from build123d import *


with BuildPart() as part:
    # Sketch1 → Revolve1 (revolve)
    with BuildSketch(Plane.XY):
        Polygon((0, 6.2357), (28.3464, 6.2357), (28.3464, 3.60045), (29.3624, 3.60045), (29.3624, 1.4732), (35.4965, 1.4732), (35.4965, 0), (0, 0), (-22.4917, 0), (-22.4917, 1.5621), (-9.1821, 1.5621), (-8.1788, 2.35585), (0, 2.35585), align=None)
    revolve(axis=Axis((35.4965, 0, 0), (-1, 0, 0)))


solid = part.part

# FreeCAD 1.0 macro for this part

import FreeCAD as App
import Part
import Sketcher
Q = App.Units.Quantity


def add_polygon(sketch, points):
    """Adds a closed chain of lines whose ends are joined by coincident constraints."""
    first, n = sketch.GeometryCount, len(points)
    for a, b in zip(points, points[1:] + points[:1]):
        sketch.addGeometry(Part.LineSegment(App.Vector(*a, 0), App.Vector(*b, 0)), False)
    for i in range(n):
        sketch.addConstraint(Sketcher.Constraint("Coincident", first + i, 2, first + (i + 1) % n, 1))

doc = App.newDocument("Part")
body = doc.addObject("PartDesign::Body", "Body")

# Sketch on XY plane
sketch1 = body.newObject("Sketcher::SketchObject", "Sketch")
sketch1.AttachmentSupport = (doc.getObject("XY_Plane"), [""])
sketch1.MapMode = "FlatFace"
add_polygon(sketch1, [(28.3464, 6.2357), (0, 6.2357), (0, 2.35585), (-8.1788, 2.35585), (-9.1821, 1.5621), (-22.4917, 1.5621), (-22.4917, 0), (35.4965, 0), (35.4965, 1.4732), (29.3624, 1.4732), (29.3624, 3.60045), (28.3464, 3.60045)])  # lines 0-11
sketch1.addConstraint(Sketcher.Constraint("Horizontal", 0))
sketch1.addConstraint(Sketcher.Constraint("Vertical", 1))
sketch1.addConstraint(Sketcher.Constraint("Horizontal", 2))
sketch1.addConstraint(Sketcher.Constraint("Horizontal", 4))
sketch1.addConstraint(Sketcher.Constraint("Vertical", 5))
sketch1.addConstraint(Sketcher.Constraint("Horizontal", 6))
sketch1.addConstraint(Sketcher.Constraint("Vertical", 7))
sketch1.addConstraint(Sketcher.Constraint("Horizontal", 8))
sketch1.addConstraint(Sketcher.Constraint("Vertical", 9))
sketch1.addConstraint(Sketcher.Constraint("Horizontal", 10))
sketch1.addConstraint(Sketcher.Constraint("Vertical", 11))
sketch1.addConstraint(Sketcher.Constraint("PointOnObject", 0, 2, -2))
sketch1.addConstraint(Sketcher.Constraint("PointOnObject", 5, 2, -1))
sketch1.addConstraint(Sketcher.Constraint("DistanceX", 10, 2, 10, 1, Q("0.04 in")))
sketch1.addConstraint(Sketcher.Constraint("DistanceX", 0, 2, 0, 1, Q("1.116 in")))
sketch1.addConstraint(Sketcher.Constraint("DistanceX", 2, 2, 2, 1, Q("0.322 in")))
sketch1.addConstraint(Sketcher.Constraint("DistanceX", 4, 2, 4, 1, Q("0.524 in")))
sketch1.addConstraint(Sketcher.Constraint("DistanceX", 6, 1, 6, 2, Q("2.283 in")))
sketch1.addConstraint(Sketcher.Constraint("DistanceY", 7, 1, 7, 2, Q("0.058 in")))
sketch1.addConstraint(Sketcher.Constraint("DistanceX", 8, 2, 8, 1, Q("0.2415 in")))
sketch1.addConstraint(Sketcher.Constraint("DistanceY", 5, 2, 5, 1, Q("0.0615 in")))
sketch1.addConstraint(Sketcher.Constraint("DistanceY", 3, 2, 2, 2, Q("0.03125 in")))
sketch1.addConstraint(Sketcher.Constraint("DistanceY", 3, 2, 0, 2, Q("0.184 in")))
sketch1.addConstraint(Sketcher.Constraint("DistanceY", 1, 2, 9, 2, Q("0.049 in")))
revolution = body.newObject("PartDesign::Revolution", "Revolution")
revolution.Profile = sketch1
revolution.ReferenceAxis = (sketch1, ["H_Axis"])
revolution.Angle = 360

doc.recompute()
